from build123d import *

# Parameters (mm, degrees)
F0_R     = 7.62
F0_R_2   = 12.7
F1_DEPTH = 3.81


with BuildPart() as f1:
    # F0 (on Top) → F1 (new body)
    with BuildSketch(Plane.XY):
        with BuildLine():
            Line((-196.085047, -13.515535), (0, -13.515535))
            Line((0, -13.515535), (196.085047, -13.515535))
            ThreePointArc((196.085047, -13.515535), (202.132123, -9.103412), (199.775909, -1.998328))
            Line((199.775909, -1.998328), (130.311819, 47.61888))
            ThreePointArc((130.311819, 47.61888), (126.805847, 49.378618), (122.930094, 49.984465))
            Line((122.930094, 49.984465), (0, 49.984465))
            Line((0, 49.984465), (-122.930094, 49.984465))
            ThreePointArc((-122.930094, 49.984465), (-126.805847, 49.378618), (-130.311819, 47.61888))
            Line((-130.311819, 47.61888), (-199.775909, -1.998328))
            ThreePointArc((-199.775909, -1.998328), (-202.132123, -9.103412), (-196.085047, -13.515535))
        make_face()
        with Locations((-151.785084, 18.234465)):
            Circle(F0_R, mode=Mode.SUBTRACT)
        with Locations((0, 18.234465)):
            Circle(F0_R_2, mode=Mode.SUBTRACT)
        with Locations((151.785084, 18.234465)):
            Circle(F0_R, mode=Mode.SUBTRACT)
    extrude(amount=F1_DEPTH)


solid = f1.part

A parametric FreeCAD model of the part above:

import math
import FreeCAD as App
import Part
import Sketcher

V = App.Vector
Q = App.Units.Quantity

doc = App.newDocument("Part")
params = doc.addObject("Spreadsheet::Sheet", "Params")
for row, (alias, value) in enumerate([
    ("sketch1_diameter", "1 in"),
    ("sketch1_diameter2", "0.6 in"),
    ("sketch1_radius", "0.25 in"),
    ("pad1_length", "0.15 in"),
], start=1):
    params.set(f"A{row}", alias)
    params.set(f"B{row}", "=" + value)
    params.setAlias(f"B{row}", alias)

body = doc.addObject("PartDesign::Body", "Body")

# Sketch on XY plane
sketch1 = body.newObject("Sketcher::SketchObject", "Sketch")
sketch1.AttachmentSupport = (doc.getObject("XY_Plane"), [""])
sketch1.MapMode = "FlatFace"
sketch1.addGeometry([
    Part.LineSegment(V(-196.085047, -13.515535, 0), V(196.085047, -13.515535, 0)),  # 0
    Part.ArcOfCircle(Part.Circle(V(196.085047, -7.165535, 0), V(0, 0, 1), 6.35), math.radians(-89.999999), math.radians(54.462325)),  # 1
    Part.LineSegment(V(199.775909, -1.998328, 0), V(130.311819, 47.61888, 0)),  # 2
    Part.ArcOfCircle(Part.Circle(V(122.930094, 37.284465, 0), V(0, 0, 1), 12.7), math.radians(54.462322), math.radians(89.999999)),  # 3
    Part.LineSegment(V(122.930094, 49.984465, 0), V(-122.930094, 49.984465, 0)),  # 4
    Part.ArcOfCircle(Part.Circle(V(-122.930094, 37.284465, 0), V(0, 0, 1), 12.7), math.radians(90.000001), math.radians(125.537678)),  # 5
    Part.LineSegment(V(-130.311819, 47.61888, 0), V(-199.775909, -1.998328, 0)),  # 6
    Part.ArcOfCircle(Part.Circle(V(-196.085047, -7.165535, 0), V(0, 0, 1), 6.35), math.radians(125.537675), math.radians(269.999999)),  # 7
    Part.Circle(V(-151.785084, 18.234465, 0), V(0, 0, 1), 7.62),  # 8
    Part.Circle(V(0, 18.234465, 0), V(0, 0, 1), 12.7),  # 9
    Part.Circle(V(151.785084, 18.234465, 0), V(0, 0, 1), 7.62),  # 10
], False)
sketch1.addConstraint([
    Sketcher.Constraint("Tangent", 0, 2, 1, 1),
    Sketcher.Constraint("Tangent", 1, 2, 2, 1),
    Sketcher.Constraint("Tangent", 2, 2, 3, 1),
    Sketcher.Constraint("Tangent", 3, 2, 4, 1),
    Sketcher.Constraint("Tangent", 4, 2, 5, 1),
    Sketcher.Constraint("Tangent", 5, 2, 6, 1),
    Sketcher.Constraint("Tangent", 6, 2, 7, 1),
    Sketcher.Constraint("Tangent", 7, 2, 0, 1),
    Sketcher.Constraint("Horizontal", 0),
    Sketcher.Constraint("Horizontal", 4),
    Sketcher.Constraint("Equal", 3, 5),
    Sketcher.Constraint("Equal", 1, 7),
    Sketcher.Constraint("Equal", 5, 9),
    Sketcher.Constraint("Equal", 8, 10),
    Sketcher.Constraint("Symmetric", 8, 3, 10, 3, -2),
    Sketcher.Constraint("Symmetric", 2, 2, 5, 2, -2),
    Sketcher.Constraint("PointOnObject", 9, 3, -2),
    Sketcher.Constraint("Horizontal", 8, 3, 9, 3),
    Sketcher.Constraint("Diameter", 9, Q("1 in")),
    Sketcher.Constraint("Diameter", 8, Q("0.6 in")),
    Sketcher.Constraint("Radius", 1, Q("0.25 in")),
    Sketcher.Constraint("DistanceY", 7, 3, 8, 3, Q("1 in")),
    Sketcher.Constraint("DistanceY", 0, 2, 3, 3, Q("2 in")),
    Sketcher.Constraint("DistanceX", 4, 2, 4, 1, 245.860188),
    Sketcher.Constraint("Distance", 2, 85.364671),
    Sketcher.Constraint("DistanceY", 1, 2, -1, 1, 1.998328),
    Sketcher.Constraint("DistanceX", 8, 3, 5, 3, 28.85499),
])
sketch1.setExpression("Constraints[18]", "Params.sketch1_diameter")
sketch1.setExpression("Constraints[19]", "Params.sketch1_diameter2")
sketch1.setExpression("Constraints[20]", "Params.sketch1_radius")
pad1 = body.newObject("PartDesign::Pad", "Pad")
pad1.Profile = sketch1
pad1.setExpression("Length", "Params.pad1_length")

doc.recompute()
